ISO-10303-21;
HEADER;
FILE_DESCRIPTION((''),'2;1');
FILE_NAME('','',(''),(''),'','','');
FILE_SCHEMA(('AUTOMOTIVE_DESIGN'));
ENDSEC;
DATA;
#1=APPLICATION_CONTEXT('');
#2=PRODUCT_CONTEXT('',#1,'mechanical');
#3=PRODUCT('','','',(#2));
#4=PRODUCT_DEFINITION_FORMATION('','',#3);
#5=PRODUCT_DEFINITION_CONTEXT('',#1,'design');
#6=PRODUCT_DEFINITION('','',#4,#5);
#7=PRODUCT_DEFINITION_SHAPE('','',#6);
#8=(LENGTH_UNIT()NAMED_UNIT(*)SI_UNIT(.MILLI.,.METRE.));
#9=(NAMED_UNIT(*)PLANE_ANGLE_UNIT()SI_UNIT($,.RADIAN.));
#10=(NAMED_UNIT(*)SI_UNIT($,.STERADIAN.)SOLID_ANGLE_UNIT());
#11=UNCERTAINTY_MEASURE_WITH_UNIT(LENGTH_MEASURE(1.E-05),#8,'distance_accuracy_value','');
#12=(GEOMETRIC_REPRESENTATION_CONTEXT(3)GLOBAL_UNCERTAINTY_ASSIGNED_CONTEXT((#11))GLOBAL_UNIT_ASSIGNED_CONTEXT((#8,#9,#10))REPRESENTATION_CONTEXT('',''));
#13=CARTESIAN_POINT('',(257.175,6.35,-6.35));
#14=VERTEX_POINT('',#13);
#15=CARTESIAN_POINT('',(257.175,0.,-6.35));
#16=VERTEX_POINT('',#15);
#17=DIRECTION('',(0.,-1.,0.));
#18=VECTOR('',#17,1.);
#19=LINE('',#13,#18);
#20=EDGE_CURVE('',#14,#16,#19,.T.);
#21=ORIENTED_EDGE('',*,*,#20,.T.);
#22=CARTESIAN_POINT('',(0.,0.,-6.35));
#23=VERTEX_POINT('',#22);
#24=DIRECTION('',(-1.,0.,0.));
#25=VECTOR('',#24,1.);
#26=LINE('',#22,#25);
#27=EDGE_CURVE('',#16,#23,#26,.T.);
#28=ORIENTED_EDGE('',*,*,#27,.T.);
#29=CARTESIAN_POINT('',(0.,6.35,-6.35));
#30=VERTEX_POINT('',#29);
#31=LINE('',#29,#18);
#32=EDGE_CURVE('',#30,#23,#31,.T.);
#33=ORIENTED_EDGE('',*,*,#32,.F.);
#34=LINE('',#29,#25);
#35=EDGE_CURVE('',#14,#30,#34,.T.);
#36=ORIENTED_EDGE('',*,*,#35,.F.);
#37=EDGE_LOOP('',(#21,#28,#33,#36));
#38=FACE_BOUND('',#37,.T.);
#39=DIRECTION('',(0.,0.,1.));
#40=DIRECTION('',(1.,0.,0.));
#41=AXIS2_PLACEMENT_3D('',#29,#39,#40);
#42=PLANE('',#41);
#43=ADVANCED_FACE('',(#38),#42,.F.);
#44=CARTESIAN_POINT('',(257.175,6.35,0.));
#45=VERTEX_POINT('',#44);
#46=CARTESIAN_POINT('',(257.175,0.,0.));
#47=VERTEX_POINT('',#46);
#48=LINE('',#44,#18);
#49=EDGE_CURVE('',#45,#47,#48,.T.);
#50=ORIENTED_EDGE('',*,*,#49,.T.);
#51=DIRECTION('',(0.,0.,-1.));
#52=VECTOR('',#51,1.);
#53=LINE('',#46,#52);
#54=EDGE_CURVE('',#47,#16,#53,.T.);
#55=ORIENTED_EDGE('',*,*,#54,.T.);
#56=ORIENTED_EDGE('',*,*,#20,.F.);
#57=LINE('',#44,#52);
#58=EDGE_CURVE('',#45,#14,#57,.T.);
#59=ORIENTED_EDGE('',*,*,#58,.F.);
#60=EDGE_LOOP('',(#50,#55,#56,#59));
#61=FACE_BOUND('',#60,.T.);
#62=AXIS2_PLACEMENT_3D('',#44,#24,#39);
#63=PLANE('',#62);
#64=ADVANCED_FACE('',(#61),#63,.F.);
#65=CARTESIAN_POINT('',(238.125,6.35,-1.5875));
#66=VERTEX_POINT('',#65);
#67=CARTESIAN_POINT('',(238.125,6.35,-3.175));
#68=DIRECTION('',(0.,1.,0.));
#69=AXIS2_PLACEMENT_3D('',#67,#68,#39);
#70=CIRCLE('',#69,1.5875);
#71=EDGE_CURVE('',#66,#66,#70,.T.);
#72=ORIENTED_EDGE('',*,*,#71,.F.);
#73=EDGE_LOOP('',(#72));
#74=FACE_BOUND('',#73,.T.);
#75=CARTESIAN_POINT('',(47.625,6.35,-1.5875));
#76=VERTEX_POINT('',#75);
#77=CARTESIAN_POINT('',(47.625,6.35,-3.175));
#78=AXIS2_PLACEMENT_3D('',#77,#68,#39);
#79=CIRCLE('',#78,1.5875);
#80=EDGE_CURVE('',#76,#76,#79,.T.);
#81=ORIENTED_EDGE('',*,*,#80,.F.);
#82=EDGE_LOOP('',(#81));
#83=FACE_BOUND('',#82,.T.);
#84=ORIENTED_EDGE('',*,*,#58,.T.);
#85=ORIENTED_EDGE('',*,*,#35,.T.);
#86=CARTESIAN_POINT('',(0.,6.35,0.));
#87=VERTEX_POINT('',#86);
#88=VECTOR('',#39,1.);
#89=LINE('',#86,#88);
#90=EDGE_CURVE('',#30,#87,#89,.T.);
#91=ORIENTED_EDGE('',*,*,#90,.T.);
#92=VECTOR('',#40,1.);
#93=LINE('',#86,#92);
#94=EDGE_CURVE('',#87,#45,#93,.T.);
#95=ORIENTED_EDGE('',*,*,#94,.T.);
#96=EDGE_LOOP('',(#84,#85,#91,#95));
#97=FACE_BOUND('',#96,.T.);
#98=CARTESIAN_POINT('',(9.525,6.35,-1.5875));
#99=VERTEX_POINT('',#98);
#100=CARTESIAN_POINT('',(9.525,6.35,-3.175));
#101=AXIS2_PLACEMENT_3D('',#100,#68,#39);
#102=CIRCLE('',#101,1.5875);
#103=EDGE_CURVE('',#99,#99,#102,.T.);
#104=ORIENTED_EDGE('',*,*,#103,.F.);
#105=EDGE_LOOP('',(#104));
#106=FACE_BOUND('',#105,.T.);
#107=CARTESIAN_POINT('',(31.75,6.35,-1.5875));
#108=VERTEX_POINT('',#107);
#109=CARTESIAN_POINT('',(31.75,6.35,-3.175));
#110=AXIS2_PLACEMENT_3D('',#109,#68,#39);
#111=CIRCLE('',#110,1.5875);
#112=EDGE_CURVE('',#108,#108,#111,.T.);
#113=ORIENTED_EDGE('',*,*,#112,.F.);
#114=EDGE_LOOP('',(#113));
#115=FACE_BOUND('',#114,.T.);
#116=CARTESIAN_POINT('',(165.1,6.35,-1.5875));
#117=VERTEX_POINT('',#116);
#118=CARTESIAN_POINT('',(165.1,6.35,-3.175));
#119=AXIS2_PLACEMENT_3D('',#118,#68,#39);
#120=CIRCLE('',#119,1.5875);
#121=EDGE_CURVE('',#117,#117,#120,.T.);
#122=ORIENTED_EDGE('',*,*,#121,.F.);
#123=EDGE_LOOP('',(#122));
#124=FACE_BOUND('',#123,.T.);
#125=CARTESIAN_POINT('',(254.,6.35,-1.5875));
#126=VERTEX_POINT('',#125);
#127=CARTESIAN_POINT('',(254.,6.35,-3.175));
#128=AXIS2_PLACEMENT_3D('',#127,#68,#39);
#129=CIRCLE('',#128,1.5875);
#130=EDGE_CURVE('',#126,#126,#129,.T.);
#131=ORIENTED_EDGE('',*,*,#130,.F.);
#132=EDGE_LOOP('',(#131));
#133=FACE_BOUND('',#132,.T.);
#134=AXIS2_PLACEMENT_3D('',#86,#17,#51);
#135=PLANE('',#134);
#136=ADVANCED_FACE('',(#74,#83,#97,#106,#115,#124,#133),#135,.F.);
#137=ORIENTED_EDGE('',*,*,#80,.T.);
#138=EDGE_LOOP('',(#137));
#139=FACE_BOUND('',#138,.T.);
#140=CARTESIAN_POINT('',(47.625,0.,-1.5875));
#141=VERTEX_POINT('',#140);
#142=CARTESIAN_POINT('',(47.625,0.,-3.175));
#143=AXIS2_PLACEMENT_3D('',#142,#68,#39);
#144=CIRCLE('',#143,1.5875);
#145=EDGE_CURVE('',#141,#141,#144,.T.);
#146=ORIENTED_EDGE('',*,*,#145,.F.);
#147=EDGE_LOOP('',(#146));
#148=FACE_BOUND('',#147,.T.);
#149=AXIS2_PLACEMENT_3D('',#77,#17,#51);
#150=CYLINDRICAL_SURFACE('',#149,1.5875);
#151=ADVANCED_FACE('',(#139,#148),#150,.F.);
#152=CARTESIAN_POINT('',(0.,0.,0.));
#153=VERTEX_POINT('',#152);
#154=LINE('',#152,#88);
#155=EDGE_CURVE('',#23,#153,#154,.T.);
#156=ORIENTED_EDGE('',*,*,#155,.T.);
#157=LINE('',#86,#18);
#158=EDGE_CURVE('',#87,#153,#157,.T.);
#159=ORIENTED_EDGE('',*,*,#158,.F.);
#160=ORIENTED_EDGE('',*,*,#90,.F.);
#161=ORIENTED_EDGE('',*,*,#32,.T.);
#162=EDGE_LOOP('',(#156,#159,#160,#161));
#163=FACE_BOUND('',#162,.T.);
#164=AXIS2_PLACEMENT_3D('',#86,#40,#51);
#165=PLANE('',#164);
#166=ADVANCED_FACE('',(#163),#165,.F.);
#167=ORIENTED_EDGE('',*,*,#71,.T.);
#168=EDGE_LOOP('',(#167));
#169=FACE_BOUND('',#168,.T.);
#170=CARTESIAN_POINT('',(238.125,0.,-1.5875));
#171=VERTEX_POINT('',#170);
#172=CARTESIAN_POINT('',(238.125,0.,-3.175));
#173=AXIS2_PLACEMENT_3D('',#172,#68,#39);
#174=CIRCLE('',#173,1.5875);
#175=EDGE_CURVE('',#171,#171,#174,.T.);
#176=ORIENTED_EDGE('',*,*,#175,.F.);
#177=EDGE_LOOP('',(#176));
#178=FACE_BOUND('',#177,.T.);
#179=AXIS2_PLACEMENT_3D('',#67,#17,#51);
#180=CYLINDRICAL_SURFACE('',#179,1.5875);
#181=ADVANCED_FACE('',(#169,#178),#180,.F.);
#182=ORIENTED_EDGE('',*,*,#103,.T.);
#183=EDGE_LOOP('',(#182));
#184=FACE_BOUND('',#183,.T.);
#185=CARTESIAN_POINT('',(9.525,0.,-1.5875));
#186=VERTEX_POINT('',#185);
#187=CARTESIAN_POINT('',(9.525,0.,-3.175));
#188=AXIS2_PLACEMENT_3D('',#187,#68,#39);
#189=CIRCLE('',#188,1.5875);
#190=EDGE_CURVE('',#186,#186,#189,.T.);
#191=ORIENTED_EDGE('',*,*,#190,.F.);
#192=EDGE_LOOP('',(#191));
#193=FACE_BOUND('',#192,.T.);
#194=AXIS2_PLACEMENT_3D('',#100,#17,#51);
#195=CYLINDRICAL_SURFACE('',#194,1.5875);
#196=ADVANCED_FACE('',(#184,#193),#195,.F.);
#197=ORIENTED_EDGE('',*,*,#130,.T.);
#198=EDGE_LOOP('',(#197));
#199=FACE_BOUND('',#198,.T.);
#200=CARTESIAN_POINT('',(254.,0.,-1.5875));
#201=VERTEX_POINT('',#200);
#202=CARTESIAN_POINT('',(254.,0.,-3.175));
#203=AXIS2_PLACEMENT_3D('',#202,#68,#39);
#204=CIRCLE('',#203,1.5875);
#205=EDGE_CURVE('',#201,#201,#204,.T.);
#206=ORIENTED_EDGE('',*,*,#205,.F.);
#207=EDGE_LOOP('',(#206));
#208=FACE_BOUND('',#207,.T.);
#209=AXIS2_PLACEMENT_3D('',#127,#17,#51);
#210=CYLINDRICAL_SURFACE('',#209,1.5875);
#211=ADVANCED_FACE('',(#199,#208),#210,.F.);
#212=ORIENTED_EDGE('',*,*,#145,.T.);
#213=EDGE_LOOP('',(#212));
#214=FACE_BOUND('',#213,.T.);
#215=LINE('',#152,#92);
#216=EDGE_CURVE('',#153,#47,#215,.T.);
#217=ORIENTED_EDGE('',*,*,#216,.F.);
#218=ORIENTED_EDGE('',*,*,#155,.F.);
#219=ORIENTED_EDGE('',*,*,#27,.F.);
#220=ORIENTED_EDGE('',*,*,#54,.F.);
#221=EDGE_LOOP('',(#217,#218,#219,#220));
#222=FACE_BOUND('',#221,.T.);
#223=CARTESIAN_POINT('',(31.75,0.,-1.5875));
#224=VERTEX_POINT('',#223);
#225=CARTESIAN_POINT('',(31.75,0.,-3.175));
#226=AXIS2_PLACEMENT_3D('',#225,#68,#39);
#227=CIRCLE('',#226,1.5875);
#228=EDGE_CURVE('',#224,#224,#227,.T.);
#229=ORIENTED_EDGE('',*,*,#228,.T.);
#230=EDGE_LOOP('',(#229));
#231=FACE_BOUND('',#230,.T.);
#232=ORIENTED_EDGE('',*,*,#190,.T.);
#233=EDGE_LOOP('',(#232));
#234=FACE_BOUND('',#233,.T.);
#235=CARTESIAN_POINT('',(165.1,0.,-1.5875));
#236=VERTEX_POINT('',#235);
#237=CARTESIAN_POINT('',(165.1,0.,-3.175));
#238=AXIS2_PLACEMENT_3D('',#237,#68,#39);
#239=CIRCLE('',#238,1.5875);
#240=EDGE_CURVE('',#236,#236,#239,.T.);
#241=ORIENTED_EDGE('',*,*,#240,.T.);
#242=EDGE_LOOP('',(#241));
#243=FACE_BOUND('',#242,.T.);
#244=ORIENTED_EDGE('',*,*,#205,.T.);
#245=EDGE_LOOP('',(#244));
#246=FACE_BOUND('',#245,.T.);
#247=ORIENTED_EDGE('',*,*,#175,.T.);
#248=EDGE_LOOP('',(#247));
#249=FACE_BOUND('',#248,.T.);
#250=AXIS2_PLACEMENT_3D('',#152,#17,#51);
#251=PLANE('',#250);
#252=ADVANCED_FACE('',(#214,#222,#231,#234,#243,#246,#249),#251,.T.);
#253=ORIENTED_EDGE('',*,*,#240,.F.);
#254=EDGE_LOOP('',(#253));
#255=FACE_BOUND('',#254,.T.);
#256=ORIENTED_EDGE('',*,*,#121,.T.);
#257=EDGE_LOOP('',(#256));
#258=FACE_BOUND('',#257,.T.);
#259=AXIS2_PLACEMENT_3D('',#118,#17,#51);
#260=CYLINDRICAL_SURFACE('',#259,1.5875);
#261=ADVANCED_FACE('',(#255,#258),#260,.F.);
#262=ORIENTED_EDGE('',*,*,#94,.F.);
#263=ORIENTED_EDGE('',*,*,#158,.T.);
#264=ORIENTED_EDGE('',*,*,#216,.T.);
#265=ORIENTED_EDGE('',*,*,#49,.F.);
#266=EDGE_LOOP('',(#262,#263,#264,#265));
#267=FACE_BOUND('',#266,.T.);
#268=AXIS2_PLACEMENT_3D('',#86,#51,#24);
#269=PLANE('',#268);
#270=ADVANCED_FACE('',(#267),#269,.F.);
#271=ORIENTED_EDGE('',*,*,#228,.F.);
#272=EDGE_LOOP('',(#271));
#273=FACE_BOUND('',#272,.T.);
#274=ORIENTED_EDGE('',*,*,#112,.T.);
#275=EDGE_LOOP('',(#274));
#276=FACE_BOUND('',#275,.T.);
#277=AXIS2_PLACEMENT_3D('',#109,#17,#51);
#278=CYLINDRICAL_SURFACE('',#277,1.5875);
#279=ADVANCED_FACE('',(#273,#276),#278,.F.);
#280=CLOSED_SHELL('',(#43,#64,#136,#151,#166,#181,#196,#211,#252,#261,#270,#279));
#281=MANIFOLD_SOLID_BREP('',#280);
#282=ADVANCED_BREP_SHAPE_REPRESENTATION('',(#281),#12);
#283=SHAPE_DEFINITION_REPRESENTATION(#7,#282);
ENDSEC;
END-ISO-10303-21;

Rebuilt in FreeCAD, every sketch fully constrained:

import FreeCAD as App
import Part
import Sketcher

V = App.Vector
Q = App.Units.Quantity

doc = App.newDocument("Part")
body = doc.addObject("PartDesign::Body", "Body")

sketch1 = doc.addObject("Sketcher::SketchObject", "Sketch")
body.addObject(sketch1)
sketch1.AttachmentSupport = (doc.XZ_Plane, [""])
sketch1.MapMode = "FlatFace"
sketch1.addGeometry(Part.LineSegment(V(0, -6.3, 0), V(0, 0, 0)), False)
sketch1.addGeometry(Part.LineSegment(V(0, 0, 0), V(257.2, 0, 0)), False)
sketch1.addGeometry(Part.LineSegment(V(257.2, 0, 0), V(257.2, -6.3, 0)), False)
sketch1.addGeometry(Part.LineSegment(V(257.2, -6.3, 0), V(0, -6.3, 0)), False)
sketch1.addGeometry(Part.Circle(V(9.5, -3.2, 0), V(0, 0, 1), 1.6), False)
sketch1.addGeometry(Part.Circle(V(31.8, -3.2, 0), V(0, 0, 1), 1.6), False)
sketch1.addGeometry(Part.Circle(V(47.6, -3.2, 0), V(0, 0, 1), 1.6), False)
sketch1.addGeometry(Part.Circle(V(165.1, -3.2, 0), V(0, 0, 1), 1.6), False)
sketch1.addGeometry(Part.Circle(V(238.1, -3.2, 0), V(0, 0, 1), 1.6), False)
sketch1.addGeometry(Part.Circle(V(254, -3.2, 0), V(0, 0, 1), 1.6), False)
sketch1.addConstraint(Sketcher.Constraint("Coincident", 0, 2, 1, 1))
sketch1.addConstraint(Sketcher.Constraint("Coincident", 1, 2, 2, 1))
sketch1.addConstraint(Sketcher.Constraint("Coincident", 2, 2, 3, 1))
sketch1.addConstraint(Sketcher.Constraint("Coincident", 3, 2, 0, 1))
sketch1.addConstraint(Sketcher.Constraint("Vertical", 0))
sketch1.addConstraint(Sketcher.Constraint("Horizontal", 1))
sketch1.addConstraint(Sketcher.Constraint("Vertical", 2))
sketch1.addConstraint(Sketcher.Constraint("Horizontal", 3))
sketch1.addConstraint(Sketcher.Constraint("Coincident", 0, 2, -1, 1))
sketch1.addConstraint(Sketcher.Constraint("Equal", 4, 5))
sketch1.addConstraint(Sketcher.Constraint("Equal", 5, 6))
sketch1.addConstraint(Sketcher.Constraint("Equal", 6, 7))
sketch1.addConstraint(Sketcher.Constraint("Equal", 7, 8))
sketch1.addConstraint(Sketcher.Constraint("Equal", 8, 9))
sketch1.addConstraint(Sketcher.Constraint("Horizontal", 4, 3, 5, 3))
sketch1.addConstraint(Sketcher.Constraint("Horizontal", 5, 3, 6, 3))
sketch1.addConstraint(Sketcher.Constraint("Horizontal", 6, 3, 7, 3))
sketch1.addConstraint(Sketcher.Constraint("Horizontal", 7, 3, 8, 3))
sketch1.addConstraint(Sketcher.Constraint("Horizontal", 8, 3, 9, 3))
sketch1.addConstraint(Sketcher.Constraint("Diameter", 4, Q("0.125 in")))
sketch1.addConstraint(Sketcher.Constraint("DistanceX", -1, 1, 9, 3, Q("10 in")))
sketch1.addConstraint(Sketcher.Constraint("DistanceX", 4, 3, 8, 3, Q("9 in")))
sketch1.addConstraint(Sketcher.Constraint("DistanceY", 0, 1, 0, 2, Q("0.25 in")))
sketch1.addConstraint(Sketcher.Constraint("DistanceX", -1, 1, 7, 3, Q("6.5 in")))
sketch1.addConstraint(Sketcher.Constraint("DistanceX", 4, 3, 6, 3, Q("1.5 in")))
sketch1.addConstraint(Sketcher.Constraint("DistanceX", 1, 1, 1, 2, Q("10.125 in")))
sketch1.addConstraint(Sketcher.Constraint("DistanceX", -1, 1, 5, 3, Q("1.25 in")))
sketch1.addConstraint(Sketcher.Constraint("DistanceX", 8, 3, 1, 2, Q("0.75 in")))
sketch1.addConstraint(Sketcher.Constraint("DistanceY", 4, 3, -1, 1, Q("0.125 in")))
pad1 = doc.addObject("PartDesign::Pad", "Pad")
body.addObject(pad1)
pad1.Profile = sketch1
pad1.Length = Q("0.25 in")
pad1.Reversed = True

doc.recompute()
